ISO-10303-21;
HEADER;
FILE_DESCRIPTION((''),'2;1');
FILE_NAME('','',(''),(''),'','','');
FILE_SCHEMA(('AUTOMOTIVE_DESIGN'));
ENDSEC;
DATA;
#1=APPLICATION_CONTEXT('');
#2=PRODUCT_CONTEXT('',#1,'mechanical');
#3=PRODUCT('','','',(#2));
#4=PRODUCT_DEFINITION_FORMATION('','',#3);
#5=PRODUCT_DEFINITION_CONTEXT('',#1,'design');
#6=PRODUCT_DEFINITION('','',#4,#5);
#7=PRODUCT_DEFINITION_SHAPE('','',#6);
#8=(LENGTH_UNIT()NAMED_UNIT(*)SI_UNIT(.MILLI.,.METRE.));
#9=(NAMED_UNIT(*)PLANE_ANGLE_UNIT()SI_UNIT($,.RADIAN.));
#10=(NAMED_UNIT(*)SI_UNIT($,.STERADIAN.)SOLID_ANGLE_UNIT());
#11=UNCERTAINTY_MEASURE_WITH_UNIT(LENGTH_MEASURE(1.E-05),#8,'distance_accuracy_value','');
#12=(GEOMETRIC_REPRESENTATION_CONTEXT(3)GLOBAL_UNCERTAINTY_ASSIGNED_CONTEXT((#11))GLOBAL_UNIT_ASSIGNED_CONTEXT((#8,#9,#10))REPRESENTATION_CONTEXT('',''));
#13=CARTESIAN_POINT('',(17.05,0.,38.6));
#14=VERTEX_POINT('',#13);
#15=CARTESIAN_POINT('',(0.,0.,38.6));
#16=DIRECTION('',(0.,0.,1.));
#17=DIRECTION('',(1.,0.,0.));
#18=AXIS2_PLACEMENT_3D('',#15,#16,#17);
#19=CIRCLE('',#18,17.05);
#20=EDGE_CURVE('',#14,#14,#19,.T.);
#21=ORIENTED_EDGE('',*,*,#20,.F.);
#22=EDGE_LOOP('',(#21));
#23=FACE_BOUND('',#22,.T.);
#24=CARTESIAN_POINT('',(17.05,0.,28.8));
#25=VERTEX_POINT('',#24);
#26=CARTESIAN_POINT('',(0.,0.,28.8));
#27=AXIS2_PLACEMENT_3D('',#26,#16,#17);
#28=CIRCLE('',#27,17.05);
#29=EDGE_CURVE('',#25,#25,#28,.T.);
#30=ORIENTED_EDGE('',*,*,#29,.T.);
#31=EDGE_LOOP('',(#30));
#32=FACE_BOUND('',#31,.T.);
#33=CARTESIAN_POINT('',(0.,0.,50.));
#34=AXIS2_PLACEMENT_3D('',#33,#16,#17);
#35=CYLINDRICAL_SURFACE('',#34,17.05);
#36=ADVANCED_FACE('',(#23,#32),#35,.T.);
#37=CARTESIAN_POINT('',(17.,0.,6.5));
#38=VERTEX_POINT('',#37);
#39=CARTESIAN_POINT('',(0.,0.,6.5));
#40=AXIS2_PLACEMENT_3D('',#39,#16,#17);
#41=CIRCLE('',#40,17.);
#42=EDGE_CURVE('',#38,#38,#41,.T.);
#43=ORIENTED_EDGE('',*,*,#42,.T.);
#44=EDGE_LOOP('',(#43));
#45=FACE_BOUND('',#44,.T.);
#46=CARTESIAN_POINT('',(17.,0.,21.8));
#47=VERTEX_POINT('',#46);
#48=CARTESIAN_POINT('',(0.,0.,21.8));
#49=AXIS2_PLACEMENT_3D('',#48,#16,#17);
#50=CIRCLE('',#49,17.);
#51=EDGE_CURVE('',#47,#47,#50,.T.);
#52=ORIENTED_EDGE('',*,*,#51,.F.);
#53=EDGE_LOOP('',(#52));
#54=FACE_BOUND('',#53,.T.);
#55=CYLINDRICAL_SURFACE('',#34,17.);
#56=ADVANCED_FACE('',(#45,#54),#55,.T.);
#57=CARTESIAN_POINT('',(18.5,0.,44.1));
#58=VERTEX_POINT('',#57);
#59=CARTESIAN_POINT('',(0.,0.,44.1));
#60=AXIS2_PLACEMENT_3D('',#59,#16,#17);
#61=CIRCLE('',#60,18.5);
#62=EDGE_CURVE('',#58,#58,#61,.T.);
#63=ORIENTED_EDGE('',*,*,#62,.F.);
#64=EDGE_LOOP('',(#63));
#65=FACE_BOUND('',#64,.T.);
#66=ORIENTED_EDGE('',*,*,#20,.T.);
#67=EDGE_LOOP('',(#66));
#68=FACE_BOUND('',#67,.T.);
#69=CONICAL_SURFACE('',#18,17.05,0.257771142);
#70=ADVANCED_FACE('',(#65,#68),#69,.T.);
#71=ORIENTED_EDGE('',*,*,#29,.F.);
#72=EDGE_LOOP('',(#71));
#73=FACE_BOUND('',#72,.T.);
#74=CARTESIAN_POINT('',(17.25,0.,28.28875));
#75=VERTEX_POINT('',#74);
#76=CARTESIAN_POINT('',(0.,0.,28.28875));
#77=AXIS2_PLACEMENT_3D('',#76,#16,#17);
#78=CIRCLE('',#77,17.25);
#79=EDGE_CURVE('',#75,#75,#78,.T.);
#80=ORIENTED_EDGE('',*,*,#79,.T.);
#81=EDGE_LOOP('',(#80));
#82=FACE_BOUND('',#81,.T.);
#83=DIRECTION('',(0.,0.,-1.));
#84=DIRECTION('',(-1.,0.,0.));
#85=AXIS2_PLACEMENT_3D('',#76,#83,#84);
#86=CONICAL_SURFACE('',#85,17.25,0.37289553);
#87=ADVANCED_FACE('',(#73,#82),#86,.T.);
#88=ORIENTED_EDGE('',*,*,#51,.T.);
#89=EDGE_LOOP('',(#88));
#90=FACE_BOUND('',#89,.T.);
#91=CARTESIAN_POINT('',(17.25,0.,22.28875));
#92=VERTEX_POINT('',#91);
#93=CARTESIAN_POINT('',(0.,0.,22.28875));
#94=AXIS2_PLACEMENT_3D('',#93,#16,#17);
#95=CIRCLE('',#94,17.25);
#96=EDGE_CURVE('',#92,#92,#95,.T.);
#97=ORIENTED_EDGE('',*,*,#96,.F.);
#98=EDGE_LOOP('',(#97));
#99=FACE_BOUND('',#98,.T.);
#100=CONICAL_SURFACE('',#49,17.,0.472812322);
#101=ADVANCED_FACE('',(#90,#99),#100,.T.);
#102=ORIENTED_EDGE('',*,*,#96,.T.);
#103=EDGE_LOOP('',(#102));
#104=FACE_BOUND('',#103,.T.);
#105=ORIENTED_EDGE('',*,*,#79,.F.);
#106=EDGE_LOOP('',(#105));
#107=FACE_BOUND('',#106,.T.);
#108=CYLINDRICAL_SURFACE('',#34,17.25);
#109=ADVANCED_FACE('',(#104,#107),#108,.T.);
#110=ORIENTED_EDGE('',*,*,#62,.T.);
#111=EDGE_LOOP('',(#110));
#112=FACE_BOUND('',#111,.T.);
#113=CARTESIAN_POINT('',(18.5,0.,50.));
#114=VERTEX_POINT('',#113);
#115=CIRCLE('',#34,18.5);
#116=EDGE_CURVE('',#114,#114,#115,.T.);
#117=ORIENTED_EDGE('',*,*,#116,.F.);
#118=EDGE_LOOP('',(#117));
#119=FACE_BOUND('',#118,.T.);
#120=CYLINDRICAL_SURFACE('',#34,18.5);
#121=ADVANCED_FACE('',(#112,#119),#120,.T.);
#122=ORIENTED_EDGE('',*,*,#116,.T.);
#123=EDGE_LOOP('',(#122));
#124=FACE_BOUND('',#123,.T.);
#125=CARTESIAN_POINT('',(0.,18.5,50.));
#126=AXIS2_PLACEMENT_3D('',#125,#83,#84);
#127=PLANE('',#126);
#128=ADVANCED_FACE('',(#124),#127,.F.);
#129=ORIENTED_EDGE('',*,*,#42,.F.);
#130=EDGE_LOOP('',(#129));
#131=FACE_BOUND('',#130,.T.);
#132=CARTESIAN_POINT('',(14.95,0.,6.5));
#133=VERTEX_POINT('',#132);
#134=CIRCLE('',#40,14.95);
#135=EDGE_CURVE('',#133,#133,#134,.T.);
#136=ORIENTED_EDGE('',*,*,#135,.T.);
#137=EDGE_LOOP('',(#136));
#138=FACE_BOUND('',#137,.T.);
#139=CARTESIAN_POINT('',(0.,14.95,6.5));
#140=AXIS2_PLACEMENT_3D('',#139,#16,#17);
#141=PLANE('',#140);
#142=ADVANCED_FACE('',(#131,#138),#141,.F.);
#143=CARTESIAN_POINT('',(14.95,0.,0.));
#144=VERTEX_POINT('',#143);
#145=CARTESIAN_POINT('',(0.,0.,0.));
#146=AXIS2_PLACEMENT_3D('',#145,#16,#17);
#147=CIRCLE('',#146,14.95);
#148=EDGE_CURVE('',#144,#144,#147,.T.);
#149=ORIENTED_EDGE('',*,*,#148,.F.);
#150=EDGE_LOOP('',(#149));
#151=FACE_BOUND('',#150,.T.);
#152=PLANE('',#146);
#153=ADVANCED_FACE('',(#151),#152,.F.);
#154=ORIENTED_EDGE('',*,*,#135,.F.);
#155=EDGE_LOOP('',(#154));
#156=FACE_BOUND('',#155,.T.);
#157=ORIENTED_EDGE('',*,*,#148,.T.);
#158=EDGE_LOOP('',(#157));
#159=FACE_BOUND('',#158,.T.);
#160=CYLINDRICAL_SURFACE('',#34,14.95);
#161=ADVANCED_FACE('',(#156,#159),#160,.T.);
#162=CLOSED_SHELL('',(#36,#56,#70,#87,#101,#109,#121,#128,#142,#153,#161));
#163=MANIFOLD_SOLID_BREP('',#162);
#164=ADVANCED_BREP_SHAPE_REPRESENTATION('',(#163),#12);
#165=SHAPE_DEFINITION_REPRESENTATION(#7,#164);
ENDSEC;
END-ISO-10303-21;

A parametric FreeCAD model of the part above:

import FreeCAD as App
import Part
import Sketcher
Q = App.Units.Quantity


def add_polygon(sketch, points):
    """Adds a closed chain of lines whose ends are joined by coincident constraints."""
    first, n = sketch.GeometryCount, len(points)
    for a, b in zip(points, points[1:] + points[:1]):
        sketch.addGeometry(Part.LineSegment(App.Vector(*a, 0), App.Vector(*b, 0)), False)
    for i in range(n):
        sketch.addConstraint(Sketcher.Constraint("Coincident", first + i, 2, first + (i + 1) % n, 1))

doc = App.newDocument("Part")
body = doc.addObject("PartDesign::Body", "Body")

sketch1 = body.newObject("Sketcher::SketchObject", "Sketch")
sketch1.AttachmentSupport = (doc.getObject("YZ_Plane"), [""])
sketch1.MapMode = "FlatFace"
add_polygon(sketch1, [(0, 0), (14.9, 0), (14.9, 6.5), (17, 6.5), (17, 21.8), (17.2, 22.3), (17.2, 28.3), (17.1, 28.8), (17.1, 38.6), (18.5, 44.1), (18.5, 50), (0, 50)])
sketch1.addConstraint([
    Sketcher.Constraint("Horizontal", 0),
    Sketcher.Constraint("Vertical", 1),
    Sketcher.Constraint("Horizontal", 2),
    Sketcher.Constraint("Vertical", 3),
    Sketcher.Constraint("Vertical", 5),
    Sketcher.Constraint("Vertical", 7),
    Sketcher.Constraint("Vertical", 9),
    Sketcher.Constraint("Horizontal", 10),
    Sketcher.Constraint("Vertical", 11),
    Sketcher.Constraint("Coincident", 11, 2, -1, 1),
    Sketcher.Constraint("Equal", 4, 6),
    Sketcher.Constraint("DistanceY", 5, 1, 5, 2, Q("6 mm")),
    Sketcher.Constraint("DistanceY", 11, 2, 11, 1, Q("50 mm")),
    Sketcher.Constraint("DistanceX", 10, 2, 10, 1, Q("18.5 mm")),
    Sketcher.Constraint("DistanceY", 1, 1, 1, 2, Q("6.5 mm")),
    Sketcher.Constraint("DistanceY", 3, 1, 3, 2, Q("15.3 mm")),
    Sketcher.Constraint("DistanceY", 7, 1, 7, 2, Q("9.8 mm")),
    Sketcher.Constraint("DistanceY", 9, 1, 9, 2, Q("5.9 mm")),
    Sketcher.Constraint("DistanceX", -1, 1, 2, 2, Q("17 mm")),
    Sketcher.Constraint("DistanceY", 3, 2, 6, 2, Q("7 mm")),
    Sketcher.Constraint("DistanceX", 0, 1, 0, 2, Q("14.95 mm")),
    Sketcher.Constraint("DistanceX", 1, 2, 4, 2, Q("2.3 mm")),
    Sketcher.Constraint("DistanceX", 6, 2, 5, 2, Q("0.2 mm")),
])
revolution = body.newObject("PartDesign::Revolution", "Revolution")
revolution.Profile = sketch1
revolution.ReferenceAxis = (sketch1, ["V_Axis"])
revolution.Angle = 360

doc.recompute()
